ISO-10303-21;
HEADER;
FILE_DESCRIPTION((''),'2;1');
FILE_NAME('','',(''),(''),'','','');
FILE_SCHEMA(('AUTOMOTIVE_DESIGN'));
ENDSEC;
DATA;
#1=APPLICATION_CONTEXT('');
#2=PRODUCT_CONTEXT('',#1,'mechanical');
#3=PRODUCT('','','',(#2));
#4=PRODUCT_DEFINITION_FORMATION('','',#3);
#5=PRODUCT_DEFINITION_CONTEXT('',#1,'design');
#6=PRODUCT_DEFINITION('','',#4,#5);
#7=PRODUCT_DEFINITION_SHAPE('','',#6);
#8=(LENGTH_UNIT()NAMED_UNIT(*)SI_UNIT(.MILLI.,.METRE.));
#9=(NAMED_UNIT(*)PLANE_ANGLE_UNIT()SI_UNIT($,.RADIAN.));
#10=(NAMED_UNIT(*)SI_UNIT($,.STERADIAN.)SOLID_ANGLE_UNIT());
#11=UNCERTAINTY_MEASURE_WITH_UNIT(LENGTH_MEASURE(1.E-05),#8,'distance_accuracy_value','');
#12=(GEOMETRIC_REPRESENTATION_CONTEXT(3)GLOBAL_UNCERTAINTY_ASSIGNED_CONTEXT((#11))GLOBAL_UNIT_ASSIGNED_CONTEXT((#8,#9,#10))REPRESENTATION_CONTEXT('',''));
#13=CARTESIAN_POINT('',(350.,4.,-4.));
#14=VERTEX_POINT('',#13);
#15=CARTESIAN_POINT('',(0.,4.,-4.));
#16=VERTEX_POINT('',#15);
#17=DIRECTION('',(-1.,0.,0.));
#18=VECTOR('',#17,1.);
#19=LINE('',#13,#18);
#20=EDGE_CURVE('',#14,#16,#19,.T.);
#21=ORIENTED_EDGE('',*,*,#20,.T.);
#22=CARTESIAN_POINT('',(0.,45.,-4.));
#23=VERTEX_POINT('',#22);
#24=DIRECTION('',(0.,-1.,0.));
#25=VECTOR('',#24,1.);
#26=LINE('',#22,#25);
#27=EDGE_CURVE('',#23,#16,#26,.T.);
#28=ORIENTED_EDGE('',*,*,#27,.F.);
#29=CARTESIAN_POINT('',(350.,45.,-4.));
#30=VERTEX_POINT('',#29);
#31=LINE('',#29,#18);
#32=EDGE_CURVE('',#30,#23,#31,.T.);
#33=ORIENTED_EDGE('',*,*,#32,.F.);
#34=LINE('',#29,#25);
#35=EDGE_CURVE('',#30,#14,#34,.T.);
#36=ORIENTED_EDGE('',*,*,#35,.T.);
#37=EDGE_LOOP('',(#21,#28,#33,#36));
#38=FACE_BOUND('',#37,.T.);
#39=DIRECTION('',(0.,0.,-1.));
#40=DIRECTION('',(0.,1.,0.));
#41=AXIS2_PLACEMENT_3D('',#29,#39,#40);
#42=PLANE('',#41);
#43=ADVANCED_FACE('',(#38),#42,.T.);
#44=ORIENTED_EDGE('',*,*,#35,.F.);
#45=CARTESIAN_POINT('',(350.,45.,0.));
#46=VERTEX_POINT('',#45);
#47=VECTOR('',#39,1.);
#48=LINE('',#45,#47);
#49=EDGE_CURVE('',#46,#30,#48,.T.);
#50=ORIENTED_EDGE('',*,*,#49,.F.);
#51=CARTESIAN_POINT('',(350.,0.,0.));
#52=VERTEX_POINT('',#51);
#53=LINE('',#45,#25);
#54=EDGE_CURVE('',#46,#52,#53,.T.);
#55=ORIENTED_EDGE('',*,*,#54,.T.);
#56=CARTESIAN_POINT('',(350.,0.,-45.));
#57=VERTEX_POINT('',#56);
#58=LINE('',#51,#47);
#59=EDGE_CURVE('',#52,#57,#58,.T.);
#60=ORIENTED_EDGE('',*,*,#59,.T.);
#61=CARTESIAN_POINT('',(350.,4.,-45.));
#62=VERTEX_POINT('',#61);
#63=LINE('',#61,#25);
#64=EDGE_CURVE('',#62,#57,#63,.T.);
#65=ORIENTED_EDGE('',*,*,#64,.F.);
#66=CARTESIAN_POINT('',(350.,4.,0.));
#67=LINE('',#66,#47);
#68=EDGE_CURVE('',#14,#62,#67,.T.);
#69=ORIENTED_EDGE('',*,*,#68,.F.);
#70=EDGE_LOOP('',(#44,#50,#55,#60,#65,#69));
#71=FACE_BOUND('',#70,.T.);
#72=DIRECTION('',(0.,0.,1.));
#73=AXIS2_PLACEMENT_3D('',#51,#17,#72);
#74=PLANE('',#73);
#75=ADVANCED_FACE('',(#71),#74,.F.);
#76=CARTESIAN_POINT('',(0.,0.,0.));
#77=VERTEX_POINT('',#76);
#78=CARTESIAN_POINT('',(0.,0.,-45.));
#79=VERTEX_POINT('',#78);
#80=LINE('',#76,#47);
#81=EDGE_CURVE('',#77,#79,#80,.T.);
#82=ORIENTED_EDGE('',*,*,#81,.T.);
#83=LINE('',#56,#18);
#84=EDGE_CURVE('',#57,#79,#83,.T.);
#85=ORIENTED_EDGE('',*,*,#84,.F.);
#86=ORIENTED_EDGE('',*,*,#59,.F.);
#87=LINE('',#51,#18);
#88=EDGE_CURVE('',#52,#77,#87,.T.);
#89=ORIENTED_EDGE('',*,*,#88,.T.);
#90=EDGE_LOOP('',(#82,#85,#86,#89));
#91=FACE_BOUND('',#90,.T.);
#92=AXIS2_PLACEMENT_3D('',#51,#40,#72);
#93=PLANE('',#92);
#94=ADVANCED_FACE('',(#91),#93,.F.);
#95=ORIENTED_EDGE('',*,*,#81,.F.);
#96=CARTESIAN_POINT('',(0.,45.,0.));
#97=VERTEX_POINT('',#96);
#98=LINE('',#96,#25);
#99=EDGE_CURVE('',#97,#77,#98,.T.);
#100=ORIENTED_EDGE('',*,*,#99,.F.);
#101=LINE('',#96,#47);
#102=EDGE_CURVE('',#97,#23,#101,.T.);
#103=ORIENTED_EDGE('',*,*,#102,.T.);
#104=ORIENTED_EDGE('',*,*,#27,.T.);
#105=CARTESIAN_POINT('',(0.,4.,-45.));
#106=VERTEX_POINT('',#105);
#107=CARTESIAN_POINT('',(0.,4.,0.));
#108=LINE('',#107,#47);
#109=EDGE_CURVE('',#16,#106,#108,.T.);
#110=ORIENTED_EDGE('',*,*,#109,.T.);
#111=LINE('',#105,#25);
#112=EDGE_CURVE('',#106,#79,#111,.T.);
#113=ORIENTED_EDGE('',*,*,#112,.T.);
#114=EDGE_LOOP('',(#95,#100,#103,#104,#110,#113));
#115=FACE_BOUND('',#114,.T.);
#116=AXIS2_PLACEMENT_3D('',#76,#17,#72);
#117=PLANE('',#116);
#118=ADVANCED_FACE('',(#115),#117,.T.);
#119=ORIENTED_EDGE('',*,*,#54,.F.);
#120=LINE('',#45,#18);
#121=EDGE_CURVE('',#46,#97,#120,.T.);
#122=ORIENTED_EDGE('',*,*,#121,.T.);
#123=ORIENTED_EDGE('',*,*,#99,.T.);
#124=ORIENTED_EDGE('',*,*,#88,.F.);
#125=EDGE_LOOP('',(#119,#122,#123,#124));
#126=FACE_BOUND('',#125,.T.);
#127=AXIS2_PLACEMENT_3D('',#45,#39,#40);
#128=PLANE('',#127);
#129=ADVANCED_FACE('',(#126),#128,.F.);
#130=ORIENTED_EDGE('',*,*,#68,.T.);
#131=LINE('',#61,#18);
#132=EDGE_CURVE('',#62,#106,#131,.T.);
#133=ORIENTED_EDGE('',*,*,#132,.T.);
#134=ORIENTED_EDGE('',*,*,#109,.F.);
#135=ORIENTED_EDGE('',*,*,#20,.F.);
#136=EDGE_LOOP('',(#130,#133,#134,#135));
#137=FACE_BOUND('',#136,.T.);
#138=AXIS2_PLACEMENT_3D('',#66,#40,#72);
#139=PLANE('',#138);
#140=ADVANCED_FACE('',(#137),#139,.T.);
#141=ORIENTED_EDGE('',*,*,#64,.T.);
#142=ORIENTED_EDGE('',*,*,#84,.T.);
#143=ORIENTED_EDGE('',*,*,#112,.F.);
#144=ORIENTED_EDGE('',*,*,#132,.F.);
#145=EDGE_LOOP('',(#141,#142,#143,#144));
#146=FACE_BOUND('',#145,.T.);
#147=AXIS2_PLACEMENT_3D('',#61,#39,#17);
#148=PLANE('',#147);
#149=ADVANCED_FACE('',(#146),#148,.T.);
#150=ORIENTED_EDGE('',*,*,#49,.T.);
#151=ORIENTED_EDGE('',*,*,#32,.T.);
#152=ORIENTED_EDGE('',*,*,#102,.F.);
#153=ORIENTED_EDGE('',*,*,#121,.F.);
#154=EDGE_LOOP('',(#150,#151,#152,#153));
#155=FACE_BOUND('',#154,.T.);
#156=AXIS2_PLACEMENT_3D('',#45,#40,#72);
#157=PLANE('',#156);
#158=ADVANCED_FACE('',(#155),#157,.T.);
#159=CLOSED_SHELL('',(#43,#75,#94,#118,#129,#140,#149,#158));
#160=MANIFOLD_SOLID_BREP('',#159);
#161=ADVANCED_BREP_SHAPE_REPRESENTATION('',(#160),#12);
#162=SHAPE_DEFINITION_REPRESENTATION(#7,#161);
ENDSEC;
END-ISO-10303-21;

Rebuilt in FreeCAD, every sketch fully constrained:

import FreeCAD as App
import Part
import Sketcher
from FreeCAD import Vector


def add_polygon(sketch, points):
    """Adds a closed chain of lines whose ends are joined by coincident constraints."""
    first, n = sketch.GeometryCount, len(points)
    for a, b in zip(points, points[1:] + points[:1]):
        sketch.addGeometry(Part.LineSegment(App.Vector(*a, 0), App.Vector(*b, 0)), False)
    for i in range(n):
        sketch.addConstraint(Sketcher.Constraint("Coincident", first + i, 2, first + (i + 1) % n, 1))

doc = App.newDocument("Part")
body = doc.addObject("PartDesign::Body", "Body")

sketch1 = body.newObject("Sketcher::SketchObject", "Sketch")
sketch1.AttachmentSupport = (doc.getObject("YZ_Plane"), [""])
sketch1.MapMode = "FlatFace"
add_polygon(sketch1, [(45, 0), (0, 0), (0, -45), (4, -45), (4, -4), (45, -4)])
sketch1.addConstraint([
    Sketcher.Constraint("Horizontal", 0),
    Sketcher.Constraint("Vertical", 1),
    Sketcher.Constraint("Horizontal", 2),
    Sketcher.Constraint("Vertical", 3),
    Sketcher.Constraint("Horizontal", 4),
    Sketcher.Constraint("Vertical", 5),
    Sketcher.Constraint("Coincident", 0, 2, -1, 1),
    Sketcher.Constraint("Equal", 0, 1),
    Sketcher.Constraint("Equal", 4, 3),
    Sketcher.Constraint("DistanceX", 0, 2, 0, 1, 45.0),
    Sketcher.Constraint("DistanceX", 2, 1, 2, 2, 4.0),
])
pad1 = body.newObject("PartDesign::Pad", "Pad")
pad1.Profile = sketch1
pad1.Length = 350

doc.recompute()
